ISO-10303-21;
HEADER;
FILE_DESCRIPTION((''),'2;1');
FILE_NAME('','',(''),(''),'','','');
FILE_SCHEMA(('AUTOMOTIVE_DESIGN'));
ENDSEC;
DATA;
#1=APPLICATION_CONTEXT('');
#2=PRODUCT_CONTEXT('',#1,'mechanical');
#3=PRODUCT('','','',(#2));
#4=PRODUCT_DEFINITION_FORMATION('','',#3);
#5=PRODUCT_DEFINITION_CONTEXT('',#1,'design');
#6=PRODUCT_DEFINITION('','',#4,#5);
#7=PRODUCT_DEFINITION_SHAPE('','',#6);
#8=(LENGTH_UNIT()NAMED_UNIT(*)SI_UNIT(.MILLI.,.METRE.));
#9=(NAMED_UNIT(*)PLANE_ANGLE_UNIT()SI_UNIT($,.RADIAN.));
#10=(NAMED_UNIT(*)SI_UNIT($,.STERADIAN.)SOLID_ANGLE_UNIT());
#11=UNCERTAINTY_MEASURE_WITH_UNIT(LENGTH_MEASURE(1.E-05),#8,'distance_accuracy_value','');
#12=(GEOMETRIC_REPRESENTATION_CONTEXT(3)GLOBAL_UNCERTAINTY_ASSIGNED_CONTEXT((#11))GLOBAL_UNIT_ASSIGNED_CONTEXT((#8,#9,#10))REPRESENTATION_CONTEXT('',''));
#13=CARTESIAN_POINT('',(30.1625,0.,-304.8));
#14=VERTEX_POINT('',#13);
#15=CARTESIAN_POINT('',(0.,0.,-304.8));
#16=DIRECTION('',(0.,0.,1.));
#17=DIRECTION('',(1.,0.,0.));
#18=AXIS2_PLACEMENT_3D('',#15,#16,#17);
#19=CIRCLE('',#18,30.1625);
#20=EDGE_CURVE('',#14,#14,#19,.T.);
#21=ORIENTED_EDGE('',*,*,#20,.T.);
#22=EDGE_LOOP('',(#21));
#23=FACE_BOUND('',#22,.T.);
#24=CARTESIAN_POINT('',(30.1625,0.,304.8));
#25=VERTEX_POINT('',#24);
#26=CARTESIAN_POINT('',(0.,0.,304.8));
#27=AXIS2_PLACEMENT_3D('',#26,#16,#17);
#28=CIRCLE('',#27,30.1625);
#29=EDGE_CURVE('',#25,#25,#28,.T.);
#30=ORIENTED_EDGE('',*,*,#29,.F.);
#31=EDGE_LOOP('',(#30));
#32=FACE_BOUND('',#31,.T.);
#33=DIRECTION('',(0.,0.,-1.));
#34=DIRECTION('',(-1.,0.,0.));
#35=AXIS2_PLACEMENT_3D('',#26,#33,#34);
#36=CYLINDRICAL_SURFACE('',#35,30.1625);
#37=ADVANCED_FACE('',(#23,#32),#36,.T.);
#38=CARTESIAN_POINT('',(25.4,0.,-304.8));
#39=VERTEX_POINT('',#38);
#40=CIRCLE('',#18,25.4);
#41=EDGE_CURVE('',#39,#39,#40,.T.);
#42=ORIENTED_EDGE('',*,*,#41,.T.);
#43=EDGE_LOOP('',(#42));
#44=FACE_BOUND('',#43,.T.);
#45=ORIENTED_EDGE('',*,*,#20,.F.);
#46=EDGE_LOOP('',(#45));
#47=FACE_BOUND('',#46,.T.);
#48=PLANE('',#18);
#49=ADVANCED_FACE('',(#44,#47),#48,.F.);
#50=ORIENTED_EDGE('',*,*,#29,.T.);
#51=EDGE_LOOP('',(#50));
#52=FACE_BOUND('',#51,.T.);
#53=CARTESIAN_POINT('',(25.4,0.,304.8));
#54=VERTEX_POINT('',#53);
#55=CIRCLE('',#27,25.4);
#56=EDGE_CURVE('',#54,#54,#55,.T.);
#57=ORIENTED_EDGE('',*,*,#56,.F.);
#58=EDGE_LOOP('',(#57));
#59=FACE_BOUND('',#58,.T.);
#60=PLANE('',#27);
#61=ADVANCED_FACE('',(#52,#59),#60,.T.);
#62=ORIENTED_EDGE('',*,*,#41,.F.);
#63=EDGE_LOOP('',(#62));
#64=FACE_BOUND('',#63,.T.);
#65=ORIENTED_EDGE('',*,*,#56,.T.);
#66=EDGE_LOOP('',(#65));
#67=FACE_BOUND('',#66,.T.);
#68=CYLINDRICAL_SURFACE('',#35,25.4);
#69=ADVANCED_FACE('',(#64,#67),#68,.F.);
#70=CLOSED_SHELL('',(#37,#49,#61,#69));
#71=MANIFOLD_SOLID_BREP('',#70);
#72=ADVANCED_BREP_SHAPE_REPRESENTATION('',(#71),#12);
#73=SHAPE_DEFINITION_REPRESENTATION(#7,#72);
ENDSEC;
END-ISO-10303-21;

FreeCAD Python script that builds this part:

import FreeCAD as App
import Part
import Sketcher

V = App.Vector
Q = App.Units.Quantity

doc = App.newDocument("Part")
body = doc.addObject("PartDesign::Body", "Body")

# Sketch on XY plane
sketch1 = body.newObject("Sketcher::SketchObject", "Sketch")
sketch1.AttachmentSupport = (doc.getObject("XY_Plane"), [""])
sketch1.MapMode = "FlatFace"
sketch1.addGeometry(Part.Circle(V(0, 0, 0), V(0, 0, 1), 30), False)
sketch1.addGeometry(Part.Circle(V(0, 0, 0), V(0, 0, 1), 25), False)
sketch1.addConstraint(Sketcher.Constraint("Coincident", 0, 3, -1, 1))
sketch1.addConstraint(Sketcher.Constraint("Coincident", 1, 3, -1, 1))
sketch1.addConstraint(Sketcher.Constraint("Diameter", 1, Q("2 in")))
sketch1.addConstraint(Sketcher.Constraint("Diameter", 0, Q("2.375 in")))
pad1 = body.newObject("PartDesign::Pad", "Pad")
pad1.Profile = sketch1
pad1.Length = Q("24 in")
pad1.Midplane = True

doc.recompute()
